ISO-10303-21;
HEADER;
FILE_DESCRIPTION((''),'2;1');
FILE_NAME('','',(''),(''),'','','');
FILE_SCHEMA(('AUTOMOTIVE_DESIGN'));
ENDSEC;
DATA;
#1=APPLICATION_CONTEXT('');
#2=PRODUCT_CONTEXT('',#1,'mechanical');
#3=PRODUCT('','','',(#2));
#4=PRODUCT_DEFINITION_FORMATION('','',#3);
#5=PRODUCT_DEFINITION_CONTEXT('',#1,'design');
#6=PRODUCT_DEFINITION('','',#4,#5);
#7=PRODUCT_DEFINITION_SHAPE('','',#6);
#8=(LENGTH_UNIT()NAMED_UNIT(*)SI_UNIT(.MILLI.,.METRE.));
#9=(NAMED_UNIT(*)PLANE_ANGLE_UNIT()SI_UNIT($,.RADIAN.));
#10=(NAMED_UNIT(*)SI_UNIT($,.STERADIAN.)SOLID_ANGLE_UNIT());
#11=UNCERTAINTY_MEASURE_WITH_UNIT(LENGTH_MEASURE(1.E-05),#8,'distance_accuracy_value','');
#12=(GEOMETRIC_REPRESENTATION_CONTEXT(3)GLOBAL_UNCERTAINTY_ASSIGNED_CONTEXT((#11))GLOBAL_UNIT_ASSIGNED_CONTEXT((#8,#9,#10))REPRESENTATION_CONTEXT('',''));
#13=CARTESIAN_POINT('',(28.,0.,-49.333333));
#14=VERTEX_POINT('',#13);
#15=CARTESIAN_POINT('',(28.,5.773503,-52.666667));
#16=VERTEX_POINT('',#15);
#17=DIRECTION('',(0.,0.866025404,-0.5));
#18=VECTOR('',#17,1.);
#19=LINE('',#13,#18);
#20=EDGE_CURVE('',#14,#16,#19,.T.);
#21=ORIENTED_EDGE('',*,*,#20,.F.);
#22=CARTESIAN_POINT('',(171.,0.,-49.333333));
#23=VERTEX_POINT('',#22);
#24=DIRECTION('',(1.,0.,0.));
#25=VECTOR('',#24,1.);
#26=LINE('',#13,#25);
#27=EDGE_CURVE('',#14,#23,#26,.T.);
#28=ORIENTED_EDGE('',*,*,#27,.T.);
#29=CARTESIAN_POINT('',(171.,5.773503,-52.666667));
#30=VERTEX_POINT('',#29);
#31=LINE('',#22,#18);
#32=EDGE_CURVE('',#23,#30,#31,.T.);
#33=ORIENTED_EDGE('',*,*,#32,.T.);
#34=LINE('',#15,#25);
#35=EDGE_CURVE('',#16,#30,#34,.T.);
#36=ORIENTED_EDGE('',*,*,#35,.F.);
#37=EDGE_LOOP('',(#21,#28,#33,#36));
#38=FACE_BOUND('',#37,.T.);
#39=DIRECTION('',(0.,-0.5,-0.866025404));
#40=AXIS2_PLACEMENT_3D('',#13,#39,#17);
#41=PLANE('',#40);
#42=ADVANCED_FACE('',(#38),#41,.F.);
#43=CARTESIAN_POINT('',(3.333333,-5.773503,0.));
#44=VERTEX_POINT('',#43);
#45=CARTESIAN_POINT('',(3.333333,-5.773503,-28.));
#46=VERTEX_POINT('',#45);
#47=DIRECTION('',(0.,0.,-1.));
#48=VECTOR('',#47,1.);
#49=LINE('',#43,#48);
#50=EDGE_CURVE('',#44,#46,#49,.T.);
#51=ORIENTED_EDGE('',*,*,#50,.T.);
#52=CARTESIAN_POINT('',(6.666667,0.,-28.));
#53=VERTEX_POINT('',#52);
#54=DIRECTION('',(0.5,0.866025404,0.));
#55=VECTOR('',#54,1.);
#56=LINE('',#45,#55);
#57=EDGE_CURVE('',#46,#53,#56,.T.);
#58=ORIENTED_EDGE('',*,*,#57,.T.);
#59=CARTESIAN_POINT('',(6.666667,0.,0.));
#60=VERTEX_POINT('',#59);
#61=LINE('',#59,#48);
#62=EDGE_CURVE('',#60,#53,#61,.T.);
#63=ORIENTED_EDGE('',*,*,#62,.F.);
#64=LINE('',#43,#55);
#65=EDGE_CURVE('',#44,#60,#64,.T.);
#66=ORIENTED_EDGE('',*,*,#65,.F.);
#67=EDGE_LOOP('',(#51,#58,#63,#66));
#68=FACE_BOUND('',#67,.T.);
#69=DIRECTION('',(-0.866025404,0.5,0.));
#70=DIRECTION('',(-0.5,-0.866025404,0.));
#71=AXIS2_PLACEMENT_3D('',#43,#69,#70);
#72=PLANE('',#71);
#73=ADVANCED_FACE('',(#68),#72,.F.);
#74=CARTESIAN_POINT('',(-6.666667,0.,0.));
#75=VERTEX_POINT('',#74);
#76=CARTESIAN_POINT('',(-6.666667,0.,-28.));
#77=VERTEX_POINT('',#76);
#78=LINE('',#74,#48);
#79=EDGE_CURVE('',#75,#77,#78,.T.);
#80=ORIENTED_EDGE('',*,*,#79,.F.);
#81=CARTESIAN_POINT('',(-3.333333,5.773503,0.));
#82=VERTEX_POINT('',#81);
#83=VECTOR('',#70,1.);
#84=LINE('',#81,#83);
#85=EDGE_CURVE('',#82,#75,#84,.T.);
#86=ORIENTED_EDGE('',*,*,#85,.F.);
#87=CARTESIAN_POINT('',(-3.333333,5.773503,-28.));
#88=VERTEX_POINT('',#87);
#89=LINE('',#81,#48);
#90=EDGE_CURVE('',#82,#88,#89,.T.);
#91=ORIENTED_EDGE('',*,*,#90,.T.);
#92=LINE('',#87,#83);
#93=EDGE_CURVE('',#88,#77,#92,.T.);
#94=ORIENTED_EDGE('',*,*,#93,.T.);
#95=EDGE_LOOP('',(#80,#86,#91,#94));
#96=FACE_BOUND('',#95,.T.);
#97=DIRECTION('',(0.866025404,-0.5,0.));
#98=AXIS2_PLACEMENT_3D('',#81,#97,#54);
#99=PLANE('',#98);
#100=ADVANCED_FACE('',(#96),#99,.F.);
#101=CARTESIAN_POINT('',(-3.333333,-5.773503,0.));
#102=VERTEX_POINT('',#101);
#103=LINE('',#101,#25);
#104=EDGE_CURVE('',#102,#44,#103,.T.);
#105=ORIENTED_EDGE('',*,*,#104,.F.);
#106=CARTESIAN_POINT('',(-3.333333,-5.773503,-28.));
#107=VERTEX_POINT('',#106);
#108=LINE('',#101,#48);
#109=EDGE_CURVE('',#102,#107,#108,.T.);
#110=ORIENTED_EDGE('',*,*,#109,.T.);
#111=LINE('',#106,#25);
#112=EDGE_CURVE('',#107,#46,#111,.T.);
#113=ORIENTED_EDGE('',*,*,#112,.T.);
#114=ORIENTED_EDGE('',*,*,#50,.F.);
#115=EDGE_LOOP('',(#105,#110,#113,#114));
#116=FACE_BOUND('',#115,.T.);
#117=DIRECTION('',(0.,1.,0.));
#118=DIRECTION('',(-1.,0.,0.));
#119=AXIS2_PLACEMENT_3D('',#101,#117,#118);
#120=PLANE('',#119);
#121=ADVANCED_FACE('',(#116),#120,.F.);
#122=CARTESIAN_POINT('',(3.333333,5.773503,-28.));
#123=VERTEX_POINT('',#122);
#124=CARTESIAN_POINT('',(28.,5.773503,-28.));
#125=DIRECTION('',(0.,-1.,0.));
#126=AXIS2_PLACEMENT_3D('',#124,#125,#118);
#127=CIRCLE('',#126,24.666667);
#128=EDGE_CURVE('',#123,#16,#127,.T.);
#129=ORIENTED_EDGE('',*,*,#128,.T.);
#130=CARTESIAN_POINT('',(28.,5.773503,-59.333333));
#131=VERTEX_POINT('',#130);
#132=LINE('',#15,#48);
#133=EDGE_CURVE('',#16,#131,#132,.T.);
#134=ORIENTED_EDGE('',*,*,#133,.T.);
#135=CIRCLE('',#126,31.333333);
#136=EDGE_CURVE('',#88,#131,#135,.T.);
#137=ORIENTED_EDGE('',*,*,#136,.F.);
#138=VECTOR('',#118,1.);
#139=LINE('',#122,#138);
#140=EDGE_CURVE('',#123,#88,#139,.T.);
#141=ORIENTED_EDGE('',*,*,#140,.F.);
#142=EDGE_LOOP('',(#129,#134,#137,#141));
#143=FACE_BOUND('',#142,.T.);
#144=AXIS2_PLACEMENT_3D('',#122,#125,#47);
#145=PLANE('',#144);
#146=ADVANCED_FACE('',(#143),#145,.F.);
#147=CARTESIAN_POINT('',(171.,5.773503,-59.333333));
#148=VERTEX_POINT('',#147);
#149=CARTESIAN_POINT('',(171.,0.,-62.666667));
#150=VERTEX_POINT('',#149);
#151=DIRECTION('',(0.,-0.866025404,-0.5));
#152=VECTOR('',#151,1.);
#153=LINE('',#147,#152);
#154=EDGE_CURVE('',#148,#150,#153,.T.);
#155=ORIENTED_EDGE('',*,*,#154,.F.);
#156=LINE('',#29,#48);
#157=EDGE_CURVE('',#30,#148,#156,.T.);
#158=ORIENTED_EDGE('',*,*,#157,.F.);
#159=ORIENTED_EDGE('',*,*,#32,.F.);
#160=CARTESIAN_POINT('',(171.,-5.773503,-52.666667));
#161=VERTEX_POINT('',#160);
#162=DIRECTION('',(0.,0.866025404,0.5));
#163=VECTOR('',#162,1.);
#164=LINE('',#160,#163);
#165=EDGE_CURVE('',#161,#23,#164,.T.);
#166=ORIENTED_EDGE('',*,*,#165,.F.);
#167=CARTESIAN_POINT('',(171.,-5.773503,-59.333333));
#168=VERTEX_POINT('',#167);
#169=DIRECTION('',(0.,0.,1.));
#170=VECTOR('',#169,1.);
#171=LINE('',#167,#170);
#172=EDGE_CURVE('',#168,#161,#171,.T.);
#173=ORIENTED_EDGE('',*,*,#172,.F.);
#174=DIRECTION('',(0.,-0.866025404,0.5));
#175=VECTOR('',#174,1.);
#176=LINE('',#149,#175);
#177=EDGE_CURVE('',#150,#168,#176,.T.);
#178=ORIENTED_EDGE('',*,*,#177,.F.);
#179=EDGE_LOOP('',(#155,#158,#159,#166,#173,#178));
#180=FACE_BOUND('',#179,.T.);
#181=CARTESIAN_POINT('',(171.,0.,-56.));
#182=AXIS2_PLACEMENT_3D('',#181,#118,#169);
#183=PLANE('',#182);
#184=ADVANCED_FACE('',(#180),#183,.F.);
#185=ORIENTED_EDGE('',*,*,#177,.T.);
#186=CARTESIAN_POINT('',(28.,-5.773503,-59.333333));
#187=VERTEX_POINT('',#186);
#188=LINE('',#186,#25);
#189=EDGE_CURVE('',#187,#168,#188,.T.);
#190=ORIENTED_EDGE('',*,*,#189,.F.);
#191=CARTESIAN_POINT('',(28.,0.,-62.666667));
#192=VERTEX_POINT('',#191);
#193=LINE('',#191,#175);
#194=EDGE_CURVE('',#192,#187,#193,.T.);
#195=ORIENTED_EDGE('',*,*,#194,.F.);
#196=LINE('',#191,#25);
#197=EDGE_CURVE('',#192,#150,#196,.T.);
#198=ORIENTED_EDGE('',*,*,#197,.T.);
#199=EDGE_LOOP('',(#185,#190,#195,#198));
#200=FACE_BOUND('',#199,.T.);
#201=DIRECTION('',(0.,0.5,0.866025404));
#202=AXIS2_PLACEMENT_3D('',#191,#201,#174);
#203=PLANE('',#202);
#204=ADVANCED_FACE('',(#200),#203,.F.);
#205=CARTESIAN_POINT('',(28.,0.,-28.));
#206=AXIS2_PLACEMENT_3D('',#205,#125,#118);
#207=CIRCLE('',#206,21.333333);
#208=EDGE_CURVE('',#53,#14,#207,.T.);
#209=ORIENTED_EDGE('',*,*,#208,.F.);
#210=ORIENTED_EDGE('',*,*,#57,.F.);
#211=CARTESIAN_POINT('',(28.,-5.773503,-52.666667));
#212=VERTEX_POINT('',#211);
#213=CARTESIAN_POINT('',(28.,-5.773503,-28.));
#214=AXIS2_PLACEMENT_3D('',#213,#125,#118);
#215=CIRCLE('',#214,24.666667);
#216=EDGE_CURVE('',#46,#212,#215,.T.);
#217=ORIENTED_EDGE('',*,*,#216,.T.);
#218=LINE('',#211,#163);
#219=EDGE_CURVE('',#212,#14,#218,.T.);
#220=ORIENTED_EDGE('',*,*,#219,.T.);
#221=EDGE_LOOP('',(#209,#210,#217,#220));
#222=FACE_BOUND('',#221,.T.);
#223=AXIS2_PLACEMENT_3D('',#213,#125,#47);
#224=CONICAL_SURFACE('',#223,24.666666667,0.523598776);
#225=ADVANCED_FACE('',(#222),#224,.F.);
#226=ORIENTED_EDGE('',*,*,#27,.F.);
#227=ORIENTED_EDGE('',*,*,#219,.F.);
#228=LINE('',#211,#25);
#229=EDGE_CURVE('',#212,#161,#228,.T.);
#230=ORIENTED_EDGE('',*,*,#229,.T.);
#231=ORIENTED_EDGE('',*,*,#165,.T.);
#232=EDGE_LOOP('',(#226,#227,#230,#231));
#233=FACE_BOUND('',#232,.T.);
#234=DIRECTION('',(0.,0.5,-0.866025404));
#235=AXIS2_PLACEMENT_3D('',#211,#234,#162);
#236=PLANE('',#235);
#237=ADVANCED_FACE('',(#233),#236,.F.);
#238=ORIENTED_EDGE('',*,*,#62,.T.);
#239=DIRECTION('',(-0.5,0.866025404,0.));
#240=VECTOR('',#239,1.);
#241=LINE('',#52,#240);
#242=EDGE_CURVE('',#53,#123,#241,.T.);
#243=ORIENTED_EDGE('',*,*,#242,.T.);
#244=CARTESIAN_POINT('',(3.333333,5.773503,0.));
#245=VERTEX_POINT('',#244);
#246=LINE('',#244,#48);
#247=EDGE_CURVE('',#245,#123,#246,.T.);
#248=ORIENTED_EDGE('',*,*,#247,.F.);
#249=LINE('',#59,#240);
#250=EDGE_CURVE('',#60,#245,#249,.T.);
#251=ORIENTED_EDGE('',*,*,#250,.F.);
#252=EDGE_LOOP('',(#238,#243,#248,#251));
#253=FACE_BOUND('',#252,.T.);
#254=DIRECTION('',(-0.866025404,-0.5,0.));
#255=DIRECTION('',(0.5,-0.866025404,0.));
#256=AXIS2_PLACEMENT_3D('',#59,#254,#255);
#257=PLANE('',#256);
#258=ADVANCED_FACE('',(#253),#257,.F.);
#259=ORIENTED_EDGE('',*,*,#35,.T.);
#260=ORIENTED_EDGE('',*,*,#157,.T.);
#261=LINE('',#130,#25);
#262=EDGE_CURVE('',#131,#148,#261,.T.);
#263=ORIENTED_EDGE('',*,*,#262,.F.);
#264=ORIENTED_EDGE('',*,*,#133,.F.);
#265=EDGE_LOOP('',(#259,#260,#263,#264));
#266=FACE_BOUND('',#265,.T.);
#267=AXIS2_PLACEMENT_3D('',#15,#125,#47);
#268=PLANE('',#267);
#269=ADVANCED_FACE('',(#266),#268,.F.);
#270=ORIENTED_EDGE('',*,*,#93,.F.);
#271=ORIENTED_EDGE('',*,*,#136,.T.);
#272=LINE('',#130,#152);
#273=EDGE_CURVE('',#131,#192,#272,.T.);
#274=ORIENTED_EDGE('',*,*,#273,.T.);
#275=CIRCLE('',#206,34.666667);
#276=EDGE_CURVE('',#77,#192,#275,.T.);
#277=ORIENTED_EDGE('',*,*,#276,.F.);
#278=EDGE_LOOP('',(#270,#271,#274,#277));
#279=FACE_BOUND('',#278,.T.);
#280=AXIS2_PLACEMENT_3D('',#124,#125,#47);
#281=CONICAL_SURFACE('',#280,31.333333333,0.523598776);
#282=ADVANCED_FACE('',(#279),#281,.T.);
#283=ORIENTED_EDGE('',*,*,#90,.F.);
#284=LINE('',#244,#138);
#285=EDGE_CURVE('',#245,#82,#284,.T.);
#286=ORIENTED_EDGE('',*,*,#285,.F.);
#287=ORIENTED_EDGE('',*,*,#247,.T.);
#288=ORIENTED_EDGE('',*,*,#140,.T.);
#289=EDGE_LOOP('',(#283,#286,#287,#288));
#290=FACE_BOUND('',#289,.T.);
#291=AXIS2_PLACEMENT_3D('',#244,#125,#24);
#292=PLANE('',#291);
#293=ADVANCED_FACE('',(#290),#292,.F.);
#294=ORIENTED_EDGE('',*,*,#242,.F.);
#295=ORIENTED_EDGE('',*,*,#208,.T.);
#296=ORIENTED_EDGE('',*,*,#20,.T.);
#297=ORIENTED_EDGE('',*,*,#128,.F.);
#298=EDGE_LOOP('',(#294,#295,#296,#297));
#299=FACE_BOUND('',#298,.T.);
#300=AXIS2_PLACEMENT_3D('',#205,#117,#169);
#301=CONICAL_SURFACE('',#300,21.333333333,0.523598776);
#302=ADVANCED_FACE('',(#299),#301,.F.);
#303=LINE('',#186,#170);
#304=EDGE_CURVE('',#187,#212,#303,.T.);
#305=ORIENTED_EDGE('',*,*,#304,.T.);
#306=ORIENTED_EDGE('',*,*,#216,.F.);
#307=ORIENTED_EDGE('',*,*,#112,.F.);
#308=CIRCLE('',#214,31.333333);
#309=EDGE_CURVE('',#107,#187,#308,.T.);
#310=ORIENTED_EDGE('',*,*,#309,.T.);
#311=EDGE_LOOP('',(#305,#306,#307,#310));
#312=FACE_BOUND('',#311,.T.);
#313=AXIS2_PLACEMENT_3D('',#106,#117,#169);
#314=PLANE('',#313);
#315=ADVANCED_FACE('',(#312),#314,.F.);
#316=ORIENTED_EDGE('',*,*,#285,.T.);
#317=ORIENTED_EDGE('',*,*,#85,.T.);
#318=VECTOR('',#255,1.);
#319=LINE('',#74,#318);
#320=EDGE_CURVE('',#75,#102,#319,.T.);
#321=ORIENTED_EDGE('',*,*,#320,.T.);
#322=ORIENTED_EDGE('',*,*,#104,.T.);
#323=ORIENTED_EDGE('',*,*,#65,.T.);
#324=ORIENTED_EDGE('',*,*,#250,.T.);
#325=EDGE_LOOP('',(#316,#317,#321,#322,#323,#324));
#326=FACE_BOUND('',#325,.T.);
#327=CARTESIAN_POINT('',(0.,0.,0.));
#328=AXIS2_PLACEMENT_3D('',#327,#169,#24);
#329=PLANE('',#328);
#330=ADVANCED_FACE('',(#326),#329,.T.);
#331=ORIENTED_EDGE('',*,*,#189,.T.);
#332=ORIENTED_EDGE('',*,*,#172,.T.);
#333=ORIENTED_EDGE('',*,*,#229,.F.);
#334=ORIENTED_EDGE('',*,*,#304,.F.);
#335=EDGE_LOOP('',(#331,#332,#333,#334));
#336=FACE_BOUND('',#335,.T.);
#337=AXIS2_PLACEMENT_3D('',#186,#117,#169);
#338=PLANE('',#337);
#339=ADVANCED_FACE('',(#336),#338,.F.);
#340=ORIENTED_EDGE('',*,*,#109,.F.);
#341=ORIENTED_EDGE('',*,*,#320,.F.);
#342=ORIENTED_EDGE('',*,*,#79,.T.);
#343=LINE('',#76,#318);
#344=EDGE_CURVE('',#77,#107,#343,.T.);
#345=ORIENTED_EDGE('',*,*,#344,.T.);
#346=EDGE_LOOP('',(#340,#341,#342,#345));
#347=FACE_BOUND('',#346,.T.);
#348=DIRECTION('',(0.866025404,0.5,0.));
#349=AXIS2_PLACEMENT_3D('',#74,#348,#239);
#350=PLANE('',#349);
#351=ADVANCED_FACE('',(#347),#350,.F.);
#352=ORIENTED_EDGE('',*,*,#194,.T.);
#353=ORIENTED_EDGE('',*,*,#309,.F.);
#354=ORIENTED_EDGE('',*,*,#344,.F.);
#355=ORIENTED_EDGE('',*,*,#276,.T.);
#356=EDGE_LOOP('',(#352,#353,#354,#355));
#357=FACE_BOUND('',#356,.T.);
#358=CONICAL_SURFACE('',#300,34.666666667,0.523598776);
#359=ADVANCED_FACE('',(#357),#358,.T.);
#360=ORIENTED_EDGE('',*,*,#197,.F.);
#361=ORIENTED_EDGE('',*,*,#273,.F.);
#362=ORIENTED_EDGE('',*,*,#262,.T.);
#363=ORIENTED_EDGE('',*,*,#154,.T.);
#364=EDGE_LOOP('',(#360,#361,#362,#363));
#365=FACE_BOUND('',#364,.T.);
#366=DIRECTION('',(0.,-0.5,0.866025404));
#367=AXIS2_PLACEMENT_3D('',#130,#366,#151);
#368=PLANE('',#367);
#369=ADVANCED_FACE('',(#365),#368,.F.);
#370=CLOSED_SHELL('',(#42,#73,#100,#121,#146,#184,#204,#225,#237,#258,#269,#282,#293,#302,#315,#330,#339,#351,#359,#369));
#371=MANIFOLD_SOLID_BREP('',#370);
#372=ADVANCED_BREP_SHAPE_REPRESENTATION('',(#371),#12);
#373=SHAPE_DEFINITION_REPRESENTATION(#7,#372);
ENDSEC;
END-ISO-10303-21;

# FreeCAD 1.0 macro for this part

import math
import FreeCAD as App
import Part
import Sketcher

V = App.Vector
Q = App.Units.Quantity


def add_polygon(sketch, points):
    """Adds a closed chain of lines whose ends are joined by coincident constraints."""
    first, n = sketch.GeometryCount, len(points)
    for a, b in zip(points, points[1:] + points[:1]):
        sketch.addGeometry(Part.LineSegment(App.Vector(*a, 0), App.Vector(*b, 0)), False)
    for i in range(n):
        sketch.addConstraint(Sketcher.Constraint("Coincident", first + i, 2, first + (i + 1) % n, 1))

doc = App.newDocument("Part")
body = doc.addObject("PartDesign::Body", "Body")

# Sketch on XY plane
sketch1 = body.newObject("Sketcher::SketchObject", "Sketch")
sketch1.AttachmentSupport = (doc.getObject("XY_Plane"), [""])
sketch1.MapMode = "FlatFace"
add_polygon(sketch1, [(3, 6), (-3, 6), (-7, 0), (-3, -6), (3, -6), (7, 0)])  # lines 0-5
sketch1.addConstraint(Sketcher.Constraint("Horizontal", 0))
sketch1.addConstraint(Sketcher.Constraint("Horizontal", 3))
sketch1.addConstraint(Sketcher.Constraint("Symmetric", 0, 2, 3, 2, -1, 1))
sketch1.addConstraint(Sketcher.Constraint("Symmetric", 1, 2, 4, 2, -1, 1))
sketch1.addConstraint(Sketcher.Constraint("PointOnObject", 1, 2, -1))
sketch1.addConstraint(Sketcher.Constraint("Parallel", 2, 5))
sketch1.addConstraint(Sketcher.Constraint("Vertical", 0, 2, 2, 2))
sketch1.addConstraint(Sketcher.Constraint("Angle", 1, Q("-120 deg")))
sketch1.addConstraint(Sketcher.Constraint("DistanceX", 1, 2, 3, 2, 10.0))
sketch1.addConstraint(Sketcher.Constraint("DistanceX", 0, 2, 0, 1, 6.666667))

# Sketch on XZ plane
sketch2 = body.newObject("Sketcher::SketchObject", "Sketch001")
sketch2.AttachmentSupport = (doc.getObject("XZ_Plane"), [""])
sketch2.MapMode = "FlatFace"
sketch2.addGeometry(Part.LineSegment(V(0, 0, 0), V(0, -28, 0)), False)
sketch2.addGeometry(Part.ArcOfCircle(Part.Circle(V(28, -28, 0), V(0, 0, 1), 28), math.radians(-180), math.radians(-90)), False)
sketch2.addGeometry(Part.LineSegment(V(28, -56, 0), V(171, -56, 0)), False)
sketch2.addConstraint(Sketcher.Constraint("Tangent", 0, 2, 1, 1))
sketch2.addConstraint(Sketcher.Constraint("Tangent", 1, 2, 2, 1))
sketch2.addConstraint(Sketcher.Constraint("Vertical", 0))
sketch2.addConstraint(Sketcher.Constraint("Horizontal", 2))
sketch2.addConstraint(Sketcher.Constraint("Coincident", 0, 1, -1, 1))
sketch2.addConstraint(Sketcher.Constraint("Radius", 1, 28.0))
sketch2.addConstraint(Sketcher.Constraint("DistanceX", 2, 1, 2, 2, 143.0))
sketch2.addConstraint(Sketcher.Constraint("DistanceY", 0, 2, 0, 1, 28.0))
doc.recompute()

additivepipe = body.newObject("PartDesign::AdditivePipe", "AdditivePipe")
additivepipe.Profile = sketch1
additivepipe.Spine = (sketch2, ["Edge1", "Edge2", "Edge3"])

doc.recompute()
